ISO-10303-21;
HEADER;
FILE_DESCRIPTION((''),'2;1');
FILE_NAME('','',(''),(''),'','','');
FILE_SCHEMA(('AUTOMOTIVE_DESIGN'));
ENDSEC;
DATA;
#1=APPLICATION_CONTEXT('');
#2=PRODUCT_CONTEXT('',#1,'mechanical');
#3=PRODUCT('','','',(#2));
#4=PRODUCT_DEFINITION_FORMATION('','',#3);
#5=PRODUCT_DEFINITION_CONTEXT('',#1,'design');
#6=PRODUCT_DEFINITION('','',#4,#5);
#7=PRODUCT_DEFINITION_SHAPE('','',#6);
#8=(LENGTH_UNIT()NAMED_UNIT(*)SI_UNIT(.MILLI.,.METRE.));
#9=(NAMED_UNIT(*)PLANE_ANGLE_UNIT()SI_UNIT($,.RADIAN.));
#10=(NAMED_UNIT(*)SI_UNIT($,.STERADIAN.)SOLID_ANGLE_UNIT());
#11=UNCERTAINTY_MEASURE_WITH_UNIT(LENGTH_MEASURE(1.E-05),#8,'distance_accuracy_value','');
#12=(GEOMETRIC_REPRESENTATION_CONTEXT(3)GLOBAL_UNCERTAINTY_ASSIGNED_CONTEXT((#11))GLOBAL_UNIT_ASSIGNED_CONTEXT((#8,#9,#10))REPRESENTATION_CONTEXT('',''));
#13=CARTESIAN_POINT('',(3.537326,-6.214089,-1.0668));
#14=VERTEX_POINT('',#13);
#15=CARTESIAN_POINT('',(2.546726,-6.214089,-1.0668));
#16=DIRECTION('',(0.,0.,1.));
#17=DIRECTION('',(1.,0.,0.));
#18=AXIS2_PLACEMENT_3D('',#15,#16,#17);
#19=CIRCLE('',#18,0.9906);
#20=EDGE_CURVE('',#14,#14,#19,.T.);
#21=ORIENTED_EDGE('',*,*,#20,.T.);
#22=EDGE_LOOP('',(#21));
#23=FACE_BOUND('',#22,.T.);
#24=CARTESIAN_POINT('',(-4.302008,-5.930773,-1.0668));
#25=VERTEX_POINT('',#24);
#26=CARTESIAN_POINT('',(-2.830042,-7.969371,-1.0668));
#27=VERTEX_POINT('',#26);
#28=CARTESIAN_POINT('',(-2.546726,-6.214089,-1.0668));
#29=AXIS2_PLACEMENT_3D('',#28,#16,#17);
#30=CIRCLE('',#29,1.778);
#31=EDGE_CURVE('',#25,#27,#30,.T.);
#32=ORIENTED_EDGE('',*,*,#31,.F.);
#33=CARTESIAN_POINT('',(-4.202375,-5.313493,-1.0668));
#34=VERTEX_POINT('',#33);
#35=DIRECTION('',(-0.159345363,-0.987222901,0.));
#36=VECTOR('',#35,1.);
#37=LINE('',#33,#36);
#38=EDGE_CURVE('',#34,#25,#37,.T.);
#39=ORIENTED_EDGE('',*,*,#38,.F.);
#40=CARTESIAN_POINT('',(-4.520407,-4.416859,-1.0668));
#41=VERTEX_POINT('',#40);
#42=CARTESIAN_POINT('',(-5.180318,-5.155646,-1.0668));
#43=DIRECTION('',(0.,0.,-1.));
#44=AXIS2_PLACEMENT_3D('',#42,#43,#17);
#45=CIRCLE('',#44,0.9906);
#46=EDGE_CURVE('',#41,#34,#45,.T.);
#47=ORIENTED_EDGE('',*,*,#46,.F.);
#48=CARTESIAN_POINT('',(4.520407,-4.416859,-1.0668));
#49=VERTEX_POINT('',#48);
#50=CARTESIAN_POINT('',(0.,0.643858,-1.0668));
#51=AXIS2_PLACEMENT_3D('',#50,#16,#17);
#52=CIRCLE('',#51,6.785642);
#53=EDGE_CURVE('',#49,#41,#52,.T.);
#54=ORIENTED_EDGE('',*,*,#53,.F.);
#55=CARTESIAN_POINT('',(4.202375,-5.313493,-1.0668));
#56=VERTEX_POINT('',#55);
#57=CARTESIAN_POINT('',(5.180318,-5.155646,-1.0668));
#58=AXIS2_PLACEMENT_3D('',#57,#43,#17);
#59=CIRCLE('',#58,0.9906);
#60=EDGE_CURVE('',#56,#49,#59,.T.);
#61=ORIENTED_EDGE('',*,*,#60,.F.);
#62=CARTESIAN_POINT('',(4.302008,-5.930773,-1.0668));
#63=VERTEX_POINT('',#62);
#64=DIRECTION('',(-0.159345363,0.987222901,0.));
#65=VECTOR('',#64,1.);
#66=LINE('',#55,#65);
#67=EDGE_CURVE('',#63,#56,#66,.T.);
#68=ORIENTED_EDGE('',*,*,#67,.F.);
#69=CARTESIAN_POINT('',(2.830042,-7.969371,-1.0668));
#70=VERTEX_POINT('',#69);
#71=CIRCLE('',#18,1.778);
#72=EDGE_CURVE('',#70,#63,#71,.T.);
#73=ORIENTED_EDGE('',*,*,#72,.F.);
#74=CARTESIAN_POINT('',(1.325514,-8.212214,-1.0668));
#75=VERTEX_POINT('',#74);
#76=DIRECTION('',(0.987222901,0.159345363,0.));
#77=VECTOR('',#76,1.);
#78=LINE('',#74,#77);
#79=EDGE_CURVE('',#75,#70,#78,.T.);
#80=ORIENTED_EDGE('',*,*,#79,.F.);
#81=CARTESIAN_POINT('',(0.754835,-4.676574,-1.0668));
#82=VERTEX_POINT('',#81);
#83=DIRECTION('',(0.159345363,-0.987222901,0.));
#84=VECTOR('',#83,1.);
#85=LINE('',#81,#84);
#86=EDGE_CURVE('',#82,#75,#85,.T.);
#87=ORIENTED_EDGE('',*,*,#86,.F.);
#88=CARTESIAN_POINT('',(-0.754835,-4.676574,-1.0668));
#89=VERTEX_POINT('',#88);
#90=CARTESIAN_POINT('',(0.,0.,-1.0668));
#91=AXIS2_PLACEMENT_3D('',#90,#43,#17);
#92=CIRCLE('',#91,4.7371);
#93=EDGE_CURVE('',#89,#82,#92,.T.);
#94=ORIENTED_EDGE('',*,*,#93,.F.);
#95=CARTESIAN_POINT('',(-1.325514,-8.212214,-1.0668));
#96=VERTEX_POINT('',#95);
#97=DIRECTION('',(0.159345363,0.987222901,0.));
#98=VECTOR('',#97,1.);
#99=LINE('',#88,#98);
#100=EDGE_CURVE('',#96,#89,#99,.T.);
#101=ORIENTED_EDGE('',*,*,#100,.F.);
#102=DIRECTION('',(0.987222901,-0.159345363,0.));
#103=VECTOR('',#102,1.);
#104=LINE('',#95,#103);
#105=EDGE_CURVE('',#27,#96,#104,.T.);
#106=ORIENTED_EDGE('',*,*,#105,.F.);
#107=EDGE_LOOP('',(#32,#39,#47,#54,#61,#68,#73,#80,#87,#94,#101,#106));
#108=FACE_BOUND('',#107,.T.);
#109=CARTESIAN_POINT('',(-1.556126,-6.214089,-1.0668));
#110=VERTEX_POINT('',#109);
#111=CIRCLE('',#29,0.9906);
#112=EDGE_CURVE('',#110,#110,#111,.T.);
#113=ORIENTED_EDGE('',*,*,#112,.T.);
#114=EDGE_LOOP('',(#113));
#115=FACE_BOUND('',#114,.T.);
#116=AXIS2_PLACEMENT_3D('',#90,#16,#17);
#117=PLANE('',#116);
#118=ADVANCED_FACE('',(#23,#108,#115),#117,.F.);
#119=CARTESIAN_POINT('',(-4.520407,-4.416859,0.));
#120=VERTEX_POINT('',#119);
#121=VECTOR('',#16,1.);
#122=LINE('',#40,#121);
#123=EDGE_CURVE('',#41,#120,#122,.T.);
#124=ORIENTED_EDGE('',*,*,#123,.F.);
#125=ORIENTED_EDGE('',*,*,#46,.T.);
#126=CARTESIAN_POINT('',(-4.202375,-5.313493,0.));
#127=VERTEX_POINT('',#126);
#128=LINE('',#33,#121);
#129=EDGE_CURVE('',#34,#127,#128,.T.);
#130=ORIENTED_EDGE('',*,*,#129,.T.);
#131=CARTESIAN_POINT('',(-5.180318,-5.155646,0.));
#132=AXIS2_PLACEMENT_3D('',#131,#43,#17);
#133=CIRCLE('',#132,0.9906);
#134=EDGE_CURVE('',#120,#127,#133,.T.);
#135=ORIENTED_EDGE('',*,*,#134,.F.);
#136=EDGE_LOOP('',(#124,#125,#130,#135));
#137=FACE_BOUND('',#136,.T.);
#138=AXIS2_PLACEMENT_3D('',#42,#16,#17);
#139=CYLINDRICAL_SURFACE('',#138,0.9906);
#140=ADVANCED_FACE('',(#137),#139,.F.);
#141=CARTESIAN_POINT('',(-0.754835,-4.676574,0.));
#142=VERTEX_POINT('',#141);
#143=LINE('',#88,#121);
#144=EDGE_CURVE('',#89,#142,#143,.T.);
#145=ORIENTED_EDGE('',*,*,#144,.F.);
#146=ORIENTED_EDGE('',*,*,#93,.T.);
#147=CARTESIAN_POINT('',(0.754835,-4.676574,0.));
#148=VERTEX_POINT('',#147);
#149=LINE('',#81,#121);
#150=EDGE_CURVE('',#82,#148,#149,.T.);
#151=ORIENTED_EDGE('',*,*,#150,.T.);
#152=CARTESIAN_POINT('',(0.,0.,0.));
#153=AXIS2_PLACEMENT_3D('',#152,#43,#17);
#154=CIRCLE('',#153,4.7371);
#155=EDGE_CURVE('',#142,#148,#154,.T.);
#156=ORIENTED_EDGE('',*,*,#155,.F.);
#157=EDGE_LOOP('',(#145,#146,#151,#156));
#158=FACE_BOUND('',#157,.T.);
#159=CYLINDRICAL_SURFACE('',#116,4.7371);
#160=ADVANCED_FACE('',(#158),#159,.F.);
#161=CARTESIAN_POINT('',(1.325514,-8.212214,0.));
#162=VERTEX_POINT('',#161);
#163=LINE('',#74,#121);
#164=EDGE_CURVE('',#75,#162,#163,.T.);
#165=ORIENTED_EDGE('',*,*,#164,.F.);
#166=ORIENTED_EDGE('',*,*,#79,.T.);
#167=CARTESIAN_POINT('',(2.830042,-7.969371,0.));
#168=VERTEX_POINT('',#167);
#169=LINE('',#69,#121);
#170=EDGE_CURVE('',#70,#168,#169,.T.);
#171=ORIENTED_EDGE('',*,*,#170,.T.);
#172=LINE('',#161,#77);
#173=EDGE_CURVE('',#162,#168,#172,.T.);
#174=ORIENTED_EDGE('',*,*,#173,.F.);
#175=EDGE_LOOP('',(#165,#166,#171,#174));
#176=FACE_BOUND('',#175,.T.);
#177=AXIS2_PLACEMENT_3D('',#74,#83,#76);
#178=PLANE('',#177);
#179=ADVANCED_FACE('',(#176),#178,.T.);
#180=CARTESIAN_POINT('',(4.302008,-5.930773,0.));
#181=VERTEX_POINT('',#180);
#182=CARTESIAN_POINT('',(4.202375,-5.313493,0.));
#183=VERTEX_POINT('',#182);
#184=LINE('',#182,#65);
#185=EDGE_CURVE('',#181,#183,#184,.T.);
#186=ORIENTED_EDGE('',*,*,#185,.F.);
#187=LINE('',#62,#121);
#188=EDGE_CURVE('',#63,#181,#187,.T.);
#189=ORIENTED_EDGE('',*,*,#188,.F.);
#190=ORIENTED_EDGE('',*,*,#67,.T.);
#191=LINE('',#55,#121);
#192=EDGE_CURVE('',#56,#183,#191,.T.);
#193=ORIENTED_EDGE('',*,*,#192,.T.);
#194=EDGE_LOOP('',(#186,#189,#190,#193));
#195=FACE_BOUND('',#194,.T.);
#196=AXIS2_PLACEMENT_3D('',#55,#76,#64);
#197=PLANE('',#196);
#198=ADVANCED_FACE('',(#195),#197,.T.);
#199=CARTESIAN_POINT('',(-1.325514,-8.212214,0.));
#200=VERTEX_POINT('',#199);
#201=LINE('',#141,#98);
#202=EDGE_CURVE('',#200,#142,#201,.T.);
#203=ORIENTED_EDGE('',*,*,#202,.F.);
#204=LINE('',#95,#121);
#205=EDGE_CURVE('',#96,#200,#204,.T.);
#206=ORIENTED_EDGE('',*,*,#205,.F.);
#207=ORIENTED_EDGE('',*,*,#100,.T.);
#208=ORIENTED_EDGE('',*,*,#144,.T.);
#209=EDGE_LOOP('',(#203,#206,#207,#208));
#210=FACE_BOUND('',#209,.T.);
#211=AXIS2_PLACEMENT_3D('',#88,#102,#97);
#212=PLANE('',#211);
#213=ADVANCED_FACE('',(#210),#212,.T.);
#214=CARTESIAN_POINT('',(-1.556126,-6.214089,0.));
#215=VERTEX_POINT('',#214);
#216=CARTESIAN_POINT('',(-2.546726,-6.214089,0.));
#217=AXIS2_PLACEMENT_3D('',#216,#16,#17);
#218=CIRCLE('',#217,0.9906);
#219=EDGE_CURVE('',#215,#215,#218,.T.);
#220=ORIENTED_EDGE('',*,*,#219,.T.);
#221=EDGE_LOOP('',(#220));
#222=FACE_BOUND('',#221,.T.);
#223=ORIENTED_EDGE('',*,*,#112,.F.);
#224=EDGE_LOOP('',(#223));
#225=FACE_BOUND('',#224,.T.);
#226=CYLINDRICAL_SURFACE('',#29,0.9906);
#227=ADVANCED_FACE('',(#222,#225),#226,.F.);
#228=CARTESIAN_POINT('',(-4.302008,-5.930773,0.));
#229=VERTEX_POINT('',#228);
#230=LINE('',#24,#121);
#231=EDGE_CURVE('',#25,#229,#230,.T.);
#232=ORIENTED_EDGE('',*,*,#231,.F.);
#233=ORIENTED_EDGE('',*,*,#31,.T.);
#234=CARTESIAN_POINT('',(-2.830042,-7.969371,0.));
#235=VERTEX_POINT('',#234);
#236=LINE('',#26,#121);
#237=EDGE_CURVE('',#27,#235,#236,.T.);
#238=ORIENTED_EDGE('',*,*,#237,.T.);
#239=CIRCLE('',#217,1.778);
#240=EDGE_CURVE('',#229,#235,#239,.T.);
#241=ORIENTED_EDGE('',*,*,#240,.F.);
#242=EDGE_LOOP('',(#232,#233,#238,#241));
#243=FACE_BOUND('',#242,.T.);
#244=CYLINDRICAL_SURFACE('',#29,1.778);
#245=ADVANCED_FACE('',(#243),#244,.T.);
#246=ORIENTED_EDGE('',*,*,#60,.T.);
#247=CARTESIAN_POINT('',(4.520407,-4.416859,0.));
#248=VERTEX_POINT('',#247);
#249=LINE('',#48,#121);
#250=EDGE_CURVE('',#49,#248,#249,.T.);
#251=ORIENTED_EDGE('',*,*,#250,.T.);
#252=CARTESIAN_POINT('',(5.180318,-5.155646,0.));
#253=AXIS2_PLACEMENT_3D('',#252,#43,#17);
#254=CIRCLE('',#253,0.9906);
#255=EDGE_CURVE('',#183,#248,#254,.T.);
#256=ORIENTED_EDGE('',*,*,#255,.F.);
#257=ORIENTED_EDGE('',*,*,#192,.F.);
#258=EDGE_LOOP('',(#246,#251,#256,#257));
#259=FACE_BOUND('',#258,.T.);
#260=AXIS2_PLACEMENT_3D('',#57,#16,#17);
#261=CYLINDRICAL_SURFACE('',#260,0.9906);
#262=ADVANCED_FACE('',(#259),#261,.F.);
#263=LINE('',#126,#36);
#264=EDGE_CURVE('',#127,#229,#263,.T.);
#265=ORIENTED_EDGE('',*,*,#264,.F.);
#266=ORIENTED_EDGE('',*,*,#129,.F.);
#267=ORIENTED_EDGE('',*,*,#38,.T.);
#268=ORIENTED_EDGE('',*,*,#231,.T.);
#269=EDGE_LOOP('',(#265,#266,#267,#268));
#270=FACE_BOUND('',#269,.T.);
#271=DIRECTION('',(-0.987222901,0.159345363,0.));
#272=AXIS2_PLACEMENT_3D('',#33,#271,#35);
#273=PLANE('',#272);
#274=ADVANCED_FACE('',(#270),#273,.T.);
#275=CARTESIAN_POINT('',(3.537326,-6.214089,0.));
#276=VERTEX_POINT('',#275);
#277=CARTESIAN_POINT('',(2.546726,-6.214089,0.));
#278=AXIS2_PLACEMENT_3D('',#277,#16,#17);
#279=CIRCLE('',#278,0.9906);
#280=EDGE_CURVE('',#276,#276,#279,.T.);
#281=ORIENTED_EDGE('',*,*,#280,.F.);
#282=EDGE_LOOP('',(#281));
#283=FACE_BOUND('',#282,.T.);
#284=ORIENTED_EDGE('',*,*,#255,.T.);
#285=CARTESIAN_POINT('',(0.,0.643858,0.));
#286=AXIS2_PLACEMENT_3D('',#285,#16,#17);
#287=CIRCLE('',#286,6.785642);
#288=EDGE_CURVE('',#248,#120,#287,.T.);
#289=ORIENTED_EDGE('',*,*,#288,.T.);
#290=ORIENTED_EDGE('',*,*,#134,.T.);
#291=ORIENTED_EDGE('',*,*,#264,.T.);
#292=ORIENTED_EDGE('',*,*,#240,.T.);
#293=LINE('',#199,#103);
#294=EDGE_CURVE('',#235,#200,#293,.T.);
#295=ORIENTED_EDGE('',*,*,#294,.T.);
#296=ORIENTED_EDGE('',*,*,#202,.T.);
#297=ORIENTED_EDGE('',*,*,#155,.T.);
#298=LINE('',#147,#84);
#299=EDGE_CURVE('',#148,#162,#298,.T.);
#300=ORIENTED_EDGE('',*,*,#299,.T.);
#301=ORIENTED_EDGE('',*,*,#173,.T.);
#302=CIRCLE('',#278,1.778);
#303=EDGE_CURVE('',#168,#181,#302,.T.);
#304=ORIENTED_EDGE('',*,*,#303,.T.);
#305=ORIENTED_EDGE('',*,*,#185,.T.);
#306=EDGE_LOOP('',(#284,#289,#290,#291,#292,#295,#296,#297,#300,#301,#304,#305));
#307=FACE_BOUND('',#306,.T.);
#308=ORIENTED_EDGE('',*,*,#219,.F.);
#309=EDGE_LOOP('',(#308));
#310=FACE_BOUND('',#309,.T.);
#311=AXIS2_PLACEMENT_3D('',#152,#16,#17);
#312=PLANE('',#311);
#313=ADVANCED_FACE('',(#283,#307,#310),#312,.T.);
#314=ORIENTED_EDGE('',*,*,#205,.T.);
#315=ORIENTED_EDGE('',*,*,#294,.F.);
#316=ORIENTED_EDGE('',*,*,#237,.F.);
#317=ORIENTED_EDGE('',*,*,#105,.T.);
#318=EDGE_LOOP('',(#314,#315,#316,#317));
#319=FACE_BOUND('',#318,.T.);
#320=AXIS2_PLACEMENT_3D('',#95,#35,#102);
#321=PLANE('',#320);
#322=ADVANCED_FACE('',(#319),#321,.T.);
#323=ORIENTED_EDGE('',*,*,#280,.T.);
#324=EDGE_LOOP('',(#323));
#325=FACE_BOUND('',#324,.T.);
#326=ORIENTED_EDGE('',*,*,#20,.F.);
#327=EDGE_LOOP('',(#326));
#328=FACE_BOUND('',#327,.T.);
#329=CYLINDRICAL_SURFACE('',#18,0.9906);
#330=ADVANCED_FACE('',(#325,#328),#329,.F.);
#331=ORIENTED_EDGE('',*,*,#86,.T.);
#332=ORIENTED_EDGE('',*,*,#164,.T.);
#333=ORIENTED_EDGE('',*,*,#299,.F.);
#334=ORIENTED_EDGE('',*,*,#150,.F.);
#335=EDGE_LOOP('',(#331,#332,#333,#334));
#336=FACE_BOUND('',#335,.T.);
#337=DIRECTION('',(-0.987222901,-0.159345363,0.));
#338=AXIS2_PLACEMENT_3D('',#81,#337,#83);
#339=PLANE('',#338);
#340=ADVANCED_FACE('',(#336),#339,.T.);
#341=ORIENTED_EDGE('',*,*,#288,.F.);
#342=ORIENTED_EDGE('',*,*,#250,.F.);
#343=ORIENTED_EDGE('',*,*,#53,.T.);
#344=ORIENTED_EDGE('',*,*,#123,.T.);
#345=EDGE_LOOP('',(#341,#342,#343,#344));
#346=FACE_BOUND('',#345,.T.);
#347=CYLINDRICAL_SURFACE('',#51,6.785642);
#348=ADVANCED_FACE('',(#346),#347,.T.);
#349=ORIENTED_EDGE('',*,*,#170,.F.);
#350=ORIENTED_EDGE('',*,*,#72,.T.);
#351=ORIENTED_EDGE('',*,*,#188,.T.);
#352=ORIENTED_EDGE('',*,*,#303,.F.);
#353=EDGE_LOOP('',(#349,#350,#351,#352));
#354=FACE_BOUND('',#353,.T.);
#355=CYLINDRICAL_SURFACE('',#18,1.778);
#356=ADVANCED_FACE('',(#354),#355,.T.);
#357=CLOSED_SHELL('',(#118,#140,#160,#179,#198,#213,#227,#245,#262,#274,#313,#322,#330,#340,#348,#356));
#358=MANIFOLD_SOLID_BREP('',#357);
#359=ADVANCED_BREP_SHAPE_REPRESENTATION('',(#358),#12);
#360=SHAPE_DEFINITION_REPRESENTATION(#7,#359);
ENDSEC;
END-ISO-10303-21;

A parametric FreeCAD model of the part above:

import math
import FreeCAD as App
import Part
import Sketcher

V = App.Vector
Q = App.Units.Quantity

doc = App.newDocument("Part")
params = doc.addObject("Spreadsheet::Sheet", "Params")
for row, (alias, value) in enumerate([
    ("sketch1_radius", "0.07 in"),
    ("sketch1_radius2", "0.039 in"),
    ("sketch1_length", "0.06 in"),
    ("sketch1_length2", "0.141 in"),
    ("pad1_length", "0.042 in"),
    ("sketch2_diameter", "0.078 in"),
], start=1):
    params.set(f"A{row}", alias)
    params.set(f"B{row}", "=" + value)
    params.setAlias(f"B{row}", alias)

body = doc.addObject("PartDesign::Body", "Body")

sketch1 = doc.addObject("Sketcher::SketchObject", "Sketch")
body.addObject(sketch1)
sketch1.AttachmentSupport = (doc.XY_Plane, [""])
sketch1.MapMode = "FlatFace"
sketch1.addGeometry(Part.LineSegment(V(0.8, -4.7, 0), V(1.3, -8.2, 0)), False)
sketch1.addGeometry(Part.LineSegment(V(1.3, -8.2, 0), V(2.8, -8, 0)), False)
sketch1.addGeometry(Part.ArcOfCircle(Part.Circle(V(2.5, -6.2, 0), V(0, 0, 1), 1.8), math.radians(-81), math.radians(9)), False)
sketch1.addGeometry(Part.LineSegment(V(4.3, -5.9, 0), V(4.2, -5.3, 0)), False)
sketch1.addGeometry(Part.ArcOfCircle(Part.Circle(V(5.2, -5.2, 0), V(0, 0, 1), 1), math.radians(132), math.radians(189)), False)
sketch1.addGeometry(Part.ArcOfCircle(Part.Circle(V(0, 0.6, 0), V(0, 0, 1), 6.8), math.radians(-48), math.radians(228)), False)
sketch1.addGeometry(Part.ArcOfCircle(Part.Circle(V(-5.2, -5.2, 0), V(0, 0, 1), 1), math.radians(-9), math.radians(48)), False)
sketch1.addGeometry(Part.LineSegment(V(-4.2, -5.3, 0), V(-4.3, -5.9, 0)), False)
sketch1.addGeometry(Part.ArcOfCircle(Part.Circle(V(-2.5, -6.2, 0), V(0, 0, 1), 1.8), math.radians(171), math.radians(261)), False)
sketch1.addGeometry(Part.LineSegment(V(-2.8, -8, 0), V(-1.3, -8.2, 0)), False)
sketch1.addGeometry(Part.LineSegment(V(-1.3, -8.2, 0), V(-0.8, -4.7, 0)), False)
sketch1.addGeometry(Part.ArcOfCircle(Part.Circle(V(0, 0, 0), V(0, 0, 1), 4.7), math.radians(-81), math.radians(261)), False)
sketch1.addConstraint(Sketcher.Constraint("Coincident", 0, 2, 1, 1))
sketch1.addConstraint(Sketcher.Constraint("Tangent", 1, 2, 2, 1))
sketch1.addConstraint(Sketcher.Constraint("Tangent", 2, 2, 3, 1))
sketch1.addConstraint(Sketcher.Constraint("Tangent", 3, 2, 4, 2))
sketch1.addConstraint(Sketcher.Constraint("Tangent", 4, 1, 5, 1))
sketch1.addConstraint(Sketcher.Constraint("Tangent", 5, 2, 6, 2))
sketch1.addConstraint(Sketcher.Constraint("Tangent", 6, 1, 7, 1))
sketch1.addConstraint(Sketcher.Constraint("Tangent", 7, 2, 8, 1))
sketch1.addConstraint(Sketcher.Constraint("Tangent", 8, 2, 9, 1))
sketch1.addConstraint(Sketcher.Constraint("Coincident", 9, 2, 10, 1))
sketch1.addConstraint(Sketcher.Constraint("Coincident", 10, 2, 11, 2))
sketch1.addConstraint(Sketcher.Constraint("Coincident", 11, 1, 0, 1))
sketch1.addConstraint(Sketcher.Constraint("Coincident", 11, 3, -1, 1))
sketch1.addConstraint(Sketcher.Constraint("Equal", 4, 6))
sketch1.addConstraint(Sketcher.Constraint("Equal", 2, 8))
sketch1.addConstraint(Sketcher.Constraint("Symmetric", 4, 3, 6, 3, -2))
sketch1.addConstraint(Sketcher.Constraint("Symmetric", 2, 3, 8, 3, -2))
sketch1.addConstraint(Sketcher.Constraint("Symmetric", 0, 2, 9, 2, -2))
sketch1.addConstraint(Sketcher.Constraint("Perpendicular", 0, 1))
sketch1.addConstraint(Sketcher.Constraint("Perpendicular", 1, 3))
sketch1.addConstraint(Sketcher.Constraint("Perpendicular", 9, 10))
sketch1.addConstraint(Sketcher.Constraint("Radius", 2, Q("0.07 in")))
sketch1.addConstraint(Sketcher.Constraint("Radius", 4, Q("0.039 in")))
sketch1.addConstraint(Sketcher.Constraint("Radius", 11, Q("0.1865 in")))
sketch1.addConstraint(Sketcher.Constraint("Distance", 1, Q("0.06 in")))
sketch1.addConstraint(Sketcher.Constraint("Distance", 0, Q("0.141 in")))
sketch1.addConstraint(Sketcher.Constraint("Radius", 5, 6.785642))
sketch1.addConstraint(Sketcher.Constraint("DistanceY", 1, 2, 2, 2, 2.038598))
sketch1.addConstraint(Sketcher.Constraint("DistanceX", 2, 2, 4, 1, 0.218399))
sketch1.addConstraint(Sketcher.Constraint("Distance", 3, 0.625269))
sketch1.setExpression("Constraints[21]", "Params.sketch1_radius")
sketch1.setExpression("Constraints[22]", "Params.sketch1_radius2")
sketch1.setExpression("Constraints[24]", "Params.sketch1_length")
sketch1.setExpression("Constraints[25]", "Params.sketch1_length2")
pad1 = doc.addObject("PartDesign::Pad", "Pad")
body.addObject(pad1)
pad1.Profile = sketch1
pad1.setExpression("Length", "Params.pad1_length")
pad1.Reversed = True

sketch2 = doc.addObject("Sketcher::SketchObject", "Sketch001")
body.addObject(sketch2)
sketch2.AttachmentSupport = (doc.XY_Plane, [""])
sketch2.MapMode = "FlatFace"
sketch2.addGeometry(Part.Circle(V(2.5, -6.2, 0), V(0, 0, 1), 1), False)
sketch2.addGeometry(Part.Circle(V(-2.5, -6.2, 0), V(0, 0, 1), 1), False)
sketch2.addConstraint(Sketcher.Constraint("Equal", 0, 1))
sketch2.addConstraint(Sketcher.Constraint("Symmetric", 0, 3, 1, 3, -2))
sketch2.addConstraint(Sketcher.Constraint("Diameter", 0, Q("0.078 in")))
sketch2.addConstraint(Sketcher.Constraint("DistanceY", 0, 3, -1, 1, 6.214089))
sketch2.addConstraint(Sketcher.Constraint("DistanceX", -1, 1, 0, 3, 2.546726))
sketch2.setExpression("Constraints[2]", "Params.sketch2_diameter")
pocket1 = doc.addObject("PartDesign::Pocket", "Pocket")
body.addObject(pocket1)
pocket1.Profile = sketch2
pocket1.Type = "ThroughAll"

doc.recompute()
